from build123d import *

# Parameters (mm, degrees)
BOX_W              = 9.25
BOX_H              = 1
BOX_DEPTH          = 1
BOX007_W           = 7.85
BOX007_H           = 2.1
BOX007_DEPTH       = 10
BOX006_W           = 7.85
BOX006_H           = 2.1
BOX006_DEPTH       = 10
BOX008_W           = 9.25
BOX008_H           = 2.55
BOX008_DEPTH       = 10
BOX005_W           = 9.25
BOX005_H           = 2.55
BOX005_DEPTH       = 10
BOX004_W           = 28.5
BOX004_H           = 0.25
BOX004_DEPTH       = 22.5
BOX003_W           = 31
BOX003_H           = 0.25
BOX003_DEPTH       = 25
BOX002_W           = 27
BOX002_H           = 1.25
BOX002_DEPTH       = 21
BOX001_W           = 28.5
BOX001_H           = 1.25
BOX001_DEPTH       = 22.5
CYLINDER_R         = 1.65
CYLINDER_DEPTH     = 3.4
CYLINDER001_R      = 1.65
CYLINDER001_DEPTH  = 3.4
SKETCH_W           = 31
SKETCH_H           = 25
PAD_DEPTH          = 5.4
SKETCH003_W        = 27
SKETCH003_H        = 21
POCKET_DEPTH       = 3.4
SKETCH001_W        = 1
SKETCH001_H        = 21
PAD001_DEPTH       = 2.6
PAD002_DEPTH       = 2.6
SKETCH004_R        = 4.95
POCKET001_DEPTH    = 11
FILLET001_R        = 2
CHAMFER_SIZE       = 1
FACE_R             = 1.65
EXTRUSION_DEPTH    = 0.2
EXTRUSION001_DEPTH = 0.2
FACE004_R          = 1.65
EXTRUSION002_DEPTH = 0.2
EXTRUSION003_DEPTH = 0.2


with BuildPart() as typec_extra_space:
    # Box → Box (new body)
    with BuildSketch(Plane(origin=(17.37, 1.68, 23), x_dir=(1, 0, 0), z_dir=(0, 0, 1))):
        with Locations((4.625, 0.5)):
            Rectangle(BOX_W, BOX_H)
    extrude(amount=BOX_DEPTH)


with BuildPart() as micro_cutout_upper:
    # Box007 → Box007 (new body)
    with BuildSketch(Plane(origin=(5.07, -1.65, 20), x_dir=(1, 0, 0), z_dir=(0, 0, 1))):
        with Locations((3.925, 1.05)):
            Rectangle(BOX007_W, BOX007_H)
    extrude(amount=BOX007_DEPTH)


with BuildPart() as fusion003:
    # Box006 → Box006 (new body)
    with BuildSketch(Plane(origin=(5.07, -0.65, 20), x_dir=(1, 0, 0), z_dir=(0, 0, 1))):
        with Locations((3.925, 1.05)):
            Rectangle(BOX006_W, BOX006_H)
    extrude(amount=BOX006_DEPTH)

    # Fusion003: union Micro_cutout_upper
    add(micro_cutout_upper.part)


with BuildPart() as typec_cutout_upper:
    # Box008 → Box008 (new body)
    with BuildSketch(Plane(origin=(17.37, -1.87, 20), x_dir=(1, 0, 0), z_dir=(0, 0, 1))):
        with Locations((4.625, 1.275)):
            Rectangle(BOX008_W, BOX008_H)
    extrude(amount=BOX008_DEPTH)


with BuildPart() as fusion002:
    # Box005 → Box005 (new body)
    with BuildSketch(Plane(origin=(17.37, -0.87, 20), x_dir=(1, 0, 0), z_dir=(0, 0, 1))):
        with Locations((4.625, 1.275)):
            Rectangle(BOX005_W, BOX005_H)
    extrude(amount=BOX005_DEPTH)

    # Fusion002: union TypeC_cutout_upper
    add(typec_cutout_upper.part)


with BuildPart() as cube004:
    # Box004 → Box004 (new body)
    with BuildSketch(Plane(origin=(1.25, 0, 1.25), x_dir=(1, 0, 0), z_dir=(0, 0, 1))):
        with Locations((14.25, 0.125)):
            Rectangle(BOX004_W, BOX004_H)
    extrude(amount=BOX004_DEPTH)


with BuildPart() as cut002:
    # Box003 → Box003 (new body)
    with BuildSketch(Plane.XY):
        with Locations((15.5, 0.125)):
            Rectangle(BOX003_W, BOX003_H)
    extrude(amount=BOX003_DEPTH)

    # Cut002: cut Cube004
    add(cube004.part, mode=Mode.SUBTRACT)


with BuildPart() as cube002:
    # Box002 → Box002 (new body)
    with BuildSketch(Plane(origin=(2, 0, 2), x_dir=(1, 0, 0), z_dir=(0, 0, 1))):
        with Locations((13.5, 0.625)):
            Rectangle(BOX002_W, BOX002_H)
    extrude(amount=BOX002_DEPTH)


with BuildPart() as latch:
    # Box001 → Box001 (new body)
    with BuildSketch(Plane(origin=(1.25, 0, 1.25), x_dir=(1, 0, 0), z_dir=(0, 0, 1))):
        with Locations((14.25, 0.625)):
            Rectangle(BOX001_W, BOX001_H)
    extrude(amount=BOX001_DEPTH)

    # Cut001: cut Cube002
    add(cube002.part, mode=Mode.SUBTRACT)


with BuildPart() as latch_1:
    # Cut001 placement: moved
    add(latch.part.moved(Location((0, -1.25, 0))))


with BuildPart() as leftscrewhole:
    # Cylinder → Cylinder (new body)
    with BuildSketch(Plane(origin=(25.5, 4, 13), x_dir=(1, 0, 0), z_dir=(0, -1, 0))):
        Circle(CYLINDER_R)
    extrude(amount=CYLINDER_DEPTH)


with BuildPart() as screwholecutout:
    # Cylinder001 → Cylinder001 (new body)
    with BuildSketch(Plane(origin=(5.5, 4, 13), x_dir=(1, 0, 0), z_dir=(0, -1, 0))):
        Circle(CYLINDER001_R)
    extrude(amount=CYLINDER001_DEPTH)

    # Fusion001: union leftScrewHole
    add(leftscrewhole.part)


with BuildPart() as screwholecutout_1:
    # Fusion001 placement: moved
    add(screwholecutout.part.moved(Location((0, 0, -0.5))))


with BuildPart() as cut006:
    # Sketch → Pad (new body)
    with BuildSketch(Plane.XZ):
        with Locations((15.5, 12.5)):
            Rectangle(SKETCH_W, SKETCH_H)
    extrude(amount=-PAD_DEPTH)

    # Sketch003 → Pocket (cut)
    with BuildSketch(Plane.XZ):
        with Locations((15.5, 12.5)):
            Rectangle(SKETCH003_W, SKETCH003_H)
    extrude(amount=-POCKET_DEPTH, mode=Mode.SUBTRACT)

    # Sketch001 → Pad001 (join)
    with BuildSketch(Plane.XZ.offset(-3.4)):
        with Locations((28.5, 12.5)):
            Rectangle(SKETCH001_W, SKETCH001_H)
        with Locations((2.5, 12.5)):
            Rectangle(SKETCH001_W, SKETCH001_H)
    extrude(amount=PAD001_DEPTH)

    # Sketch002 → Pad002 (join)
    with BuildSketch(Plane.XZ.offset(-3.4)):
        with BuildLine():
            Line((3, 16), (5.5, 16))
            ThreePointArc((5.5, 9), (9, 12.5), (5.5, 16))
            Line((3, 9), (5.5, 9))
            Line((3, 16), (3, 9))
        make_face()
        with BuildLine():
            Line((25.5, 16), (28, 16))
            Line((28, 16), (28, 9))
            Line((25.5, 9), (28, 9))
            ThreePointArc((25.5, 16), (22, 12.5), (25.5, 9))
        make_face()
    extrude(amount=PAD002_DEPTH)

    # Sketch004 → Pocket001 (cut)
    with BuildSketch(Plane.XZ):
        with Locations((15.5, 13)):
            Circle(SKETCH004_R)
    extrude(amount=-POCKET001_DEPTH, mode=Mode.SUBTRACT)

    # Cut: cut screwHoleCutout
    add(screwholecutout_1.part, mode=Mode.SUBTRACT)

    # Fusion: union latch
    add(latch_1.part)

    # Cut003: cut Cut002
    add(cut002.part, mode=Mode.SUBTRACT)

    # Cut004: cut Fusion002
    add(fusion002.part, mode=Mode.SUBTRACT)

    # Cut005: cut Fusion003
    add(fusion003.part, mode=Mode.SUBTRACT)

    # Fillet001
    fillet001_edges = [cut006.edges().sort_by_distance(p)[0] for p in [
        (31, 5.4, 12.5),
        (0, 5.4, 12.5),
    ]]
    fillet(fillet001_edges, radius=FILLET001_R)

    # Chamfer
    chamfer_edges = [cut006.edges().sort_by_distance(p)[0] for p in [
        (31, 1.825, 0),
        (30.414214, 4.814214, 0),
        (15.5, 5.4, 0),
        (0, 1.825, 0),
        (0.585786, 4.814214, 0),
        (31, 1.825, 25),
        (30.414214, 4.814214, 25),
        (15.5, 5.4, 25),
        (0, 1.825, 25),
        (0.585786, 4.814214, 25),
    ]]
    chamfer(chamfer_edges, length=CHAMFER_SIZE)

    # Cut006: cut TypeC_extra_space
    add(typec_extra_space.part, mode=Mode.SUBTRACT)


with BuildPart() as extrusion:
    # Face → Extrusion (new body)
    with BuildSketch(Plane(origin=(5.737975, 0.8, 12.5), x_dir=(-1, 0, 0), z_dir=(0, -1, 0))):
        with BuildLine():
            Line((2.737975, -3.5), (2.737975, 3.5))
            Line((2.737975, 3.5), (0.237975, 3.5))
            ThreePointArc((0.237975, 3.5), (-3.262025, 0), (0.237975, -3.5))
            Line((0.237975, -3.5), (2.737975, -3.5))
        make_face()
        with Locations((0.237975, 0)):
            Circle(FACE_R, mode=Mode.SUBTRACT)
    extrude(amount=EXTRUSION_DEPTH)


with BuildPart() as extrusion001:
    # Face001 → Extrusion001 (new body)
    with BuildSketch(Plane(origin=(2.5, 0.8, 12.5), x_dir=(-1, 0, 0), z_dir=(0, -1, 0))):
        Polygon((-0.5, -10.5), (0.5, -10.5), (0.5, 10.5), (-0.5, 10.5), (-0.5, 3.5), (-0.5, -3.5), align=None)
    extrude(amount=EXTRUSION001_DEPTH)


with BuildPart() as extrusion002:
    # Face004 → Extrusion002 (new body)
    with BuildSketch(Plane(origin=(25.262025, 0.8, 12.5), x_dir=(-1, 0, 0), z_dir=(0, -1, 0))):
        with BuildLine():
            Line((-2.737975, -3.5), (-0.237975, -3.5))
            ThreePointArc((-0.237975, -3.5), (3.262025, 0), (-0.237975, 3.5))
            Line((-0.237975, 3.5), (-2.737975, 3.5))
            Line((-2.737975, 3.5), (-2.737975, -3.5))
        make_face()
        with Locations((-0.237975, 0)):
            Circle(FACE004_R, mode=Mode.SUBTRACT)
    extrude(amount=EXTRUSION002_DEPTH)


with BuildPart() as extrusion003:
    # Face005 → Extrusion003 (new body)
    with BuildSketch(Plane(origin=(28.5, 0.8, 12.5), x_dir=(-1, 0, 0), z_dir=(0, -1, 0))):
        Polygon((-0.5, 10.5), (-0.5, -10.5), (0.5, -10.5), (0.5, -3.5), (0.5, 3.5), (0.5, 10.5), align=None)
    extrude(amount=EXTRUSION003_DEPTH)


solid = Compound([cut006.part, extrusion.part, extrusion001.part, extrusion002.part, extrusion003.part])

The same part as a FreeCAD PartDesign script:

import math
import FreeCAD as App
import Part
import Sketcher

V = App.Vector


def edges_at(feature, points):
    """Names of the edges that pass closest to the given points."""
    edges = feature.Shape.Edges
    near = lambda p: min(range(len(edges)), key=lambda i: edges[i].distToShape(Part.Vertex(*p))[0])
    return sorted({f"Edge{near(p) + 1}" for p in points})


def add_polygon(sketch, points):
    """Adds a closed chain of lines whose ends are joined by coincident constraints."""
    first, n = sketch.GeometryCount, len(points)
    for a, b in zip(points, points[1:] + points[:1]):
        sketch.addGeometry(Part.LineSegment(App.Vector(*a, 0), App.Vector(*b, 0)), False)
    for i in range(n):
        sketch.addConstraint(Sketcher.Constraint("Coincident", first + i, 2, first + (i + 1) % n, 1))

doc = App.newDocument("Part")
params = doc.addObject("Spreadsheet::Sheet", "Params")
for row, (alias, value) in enumerate([
    ("sketch1_height", "1 mm"),
    ("sketch1_width", "9.25 mm"),
    ("pad1_length", "1 mm"),
    ("sketch2_height", "2.1 mm"),
    ("sketch2_width", "7.85 mm"),
    ("pad2_length", "10 mm"),
    ("sketch3_height", "2.1 mm"),
    ("sketch3_width", "7.85 mm"),
    ("pad3_length", "10 mm"),
    ("sketch4_width", "9.25 mm"),
    ("sketch4_height", "2.55 mm"),
    ("pad4_length", "10 mm"),
    ("sketch5_width", "9.25 mm"),
    ("sketch5_height", "2.55 mm"),
    ("pad5_length", "10 mm"),
    ("sketch6_width", "28.5 mm"),
    ("sketch6_height", "0.25 mm"),
    ("pad6_length", "22.5 mm"),
    ("sketch7_width", "31 mm"),
    ("sketch7_height", "0.25 mm"),
    ("pad7_length", "25 mm"),
    ("sketch8_width", "27 mm"),
    ("sketch8_height", "1.25 mm"),
    ("pad8_length", "21 mm"),
    ("sketch9_width", "28.5 mm"),
    ("sketch9_height", "1.25 mm"),
    ("pad9_length", "22.5 mm"),
    ("sketch10_diameter", "3.3 mm"),
    ("pad10_length", "3.4 mm"),
    ("sketch11_diameter", "3.3 mm"),
    ("pad11_length", "3.4 mm"),
    ("sketch12_width", "31 mm"),
    ("sketch12_height", "25 mm"),
    ("pad12_length", "5.4 mm"),
    ("sketch13_width", "27 mm"),
    ("sketch13_height", "21 mm"),
    ("pocket1_length", "3.4 mm"),
    ("sketch14_width", "1 mm"),
    ("sketch14_height", "21 mm"),
    ("pad13_length", "2.6 mm"),
    ("sketch15_radius", "3.5 mm"),
    ("sketch15_width", "2.5 mm"),
    ("pad14_length", "2.6 mm"),
    ("sketch16_diameter", "9.9 mm"),
    ("pocket2_length", "11 mm"),
    ("fillet_radius", "2 mm"),
    ("chamfer_size", "1 mm"),
    ("sketch17_diameter", "3.3 mm"),
    ("sketch17_radius", "3.5 mm"),
    ("sketch17_width", "2.5 mm"),
    ("pad15_length", "0.2 mm"),
    ("sketch18_width", "1 mm"),
    ("sketch18_height", "21 mm"),
    ("pad16_length", "0.2 mm"),
    ("sketch19_diameter", "3.3 mm"),
    ("sketch19_radius", "3.5 mm"),
    ("sketch19_width", "2.5 mm"),
    ("pad17_length", "0.2 mm"),
    ("sketch20_width", "1 mm"),
    ("sketch20_height", "21 mm"),
    ("pad18_length", "0.2 mm"),
], start=1):
    params.set(f"A{row}", alias)
    params.set(f"B{row}", "=" + value)
    params.setAlias(f"B{row}", alias)

body = doc.addObject("PartDesign::Body", "Body")

# Sketch on XY plane
sketch1 = body.newObject("Sketcher::SketchObject", "Sketch")
sketch1.AttachmentSupport = (doc.getObject("XY_Plane"), [""])
sketch1.MapMode = "FlatFace"
sketch1.AttachmentOffset = App.Placement(V(0, 0, 23), App.Rotation())
add_polygon(sketch1, [(17.4, 2.7), (17.4, 1.7), (26.6, 1.7), (26.6, 2.7)])  # lines 0-3
sketch1.addConstraint(Sketcher.Constraint("Vertical", 0))
sketch1.addConstraint(Sketcher.Constraint("Horizontal", 1))
sketch1.addConstraint(Sketcher.Constraint("Vertical", 2))
sketch1.addConstraint(Sketcher.Constraint("Horizontal", 3))
sketch1.addConstraint(Sketcher.Constraint("DistanceY", 0, 2, 0, 1, 1.0))
sketch1.addConstraint(Sketcher.Constraint("DistanceX", 1, 1, 1, 2, 9.25))
sketch1.addConstraint(Sketcher.Constraint("DistanceX", -1, 1, 0, 2, 17.37))
sketch1.addConstraint(Sketcher.Constraint("DistanceY", -1, 1, 0, 2, 1.68))
sketch1.setExpression("Constraints[8]", "Params.sketch1_height")
sketch1.setExpression("Constraints[9]", "Params.sketch1_width")
pad1 = body.newObject("PartDesign::Pad", "Pad")
pad1.Profile = sketch1
pad1.setExpression("Length", "Params.pad1_length")
body2 = doc.addObject("PartDesign::Body", "Body001")

# Sketch on XY plane
sketch2 = body2.newObject("Sketcher::SketchObject", "Sketch001")
sketch2.AttachmentSupport = (doc.getObject("XY_Plane001"), [""])
sketch2.MapMode = "FlatFace"
sketch2.AttachmentOffset = App.Placement(V(0, 0, 20), App.Rotation())
add_polygon(sketch2, [(5.1, 0.5), (5.1, -1.6), (12.9, -1.6), (12.9, 0.5)])  # lines 0-3
sketch2.addConstraint(Sketcher.Constraint("Vertical", 0))
sketch2.addConstraint(Sketcher.Constraint("Horizontal", 1))
sketch2.addConstraint(Sketcher.Constraint("Vertical", 2))
sketch2.addConstraint(Sketcher.Constraint("Horizontal", 3))
sketch2.addConstraint(Sketcher.Constraint("DistanceY", 0, 2, 0, 1, 2.1))
sketch2.addConstraint(Sketcher.Constraint("DistanceX", 1, 1, 1, 2, 7.85))
sketch2.addConstraint(Sketcher.Constraint("DistanceX", -1, 1, 0, 2, 5.07))
sketch2.addConstraint(Sketcher.Constraint("DistanceY", 0, 2, -1, 1, 1.65))
sketch2.setExpression("Constraints[8]", "Params.sketch2_height")
sketch2.setExpression("Constraints[9]", "Params.sketch2_width")
pad2 = body2.newObject("PartDesign::Pad", "Pad001")
pad2.Profile = sketch2
pad2.setExpression("Length", "Params.pad2_length")
body3 = doc.addObject("PartDesign::Body", "Body002")

# Sketch on XY plane
sketch3 = body3.newObject("Sketcher::SketchObject", "Sketch002")
sketch3.AttachmentSupport = (doc.getObject("XY_Plane002"), [""])
sketch3.MapMode = "FlatFace"
sketch3.AttachmentOffset = App.Placement(V(0, 0, 20), App.Rotation())
add_polygon(sketch3, [(5.1, 1.4), (5.1, -0.7), (12.9, -0.7), (12.9, 1.4)])  # lines 0-3
sketch3.addConstraint(Sketcher.Constraint("Vertical", 0))
sketch3.addConstraint(Sketcher.Constraint("Horizontal", 1))
sketch3.addConstraint(Sketcher.Constraint("Vertical", 2))
sketch3.addConstraint(Sketcher.Constraint("Horizontal", 3))
sketch3.addConstraint(Sketcher.Constraint("DistanceY", 0, 2, 0, 1, 2.1))
sketch3.addConstraint(Sketcher.Constraint("DistanceX", 1, 1, 1, 2, 7.85))
sketch3.addConstraint(Sketcher.Constraint("DistanceX", -1, 1, 0, 2, 5.07))
sketch3.addConstraint(Sketcher.Constraint("DistanceY", 0, 2, -1, 1, 0.65))
sketch3.setExpression("Constraints[8]", "Params.sketch3_height")
sketch3.setExpression("Constraints[9]", "Params.sketch3_width")
pad3 = body3.newObject("PartDesign::Pad", "Pad002")
pad3.Profile = sketch3
pad3.setExpression("Length", "Params.pad3_length")
doc.recompute()

boolean = body3.newObject("PartDesign::Boolean", "Boolean")
boolean.Type = "Fuse"
boolean.addObjects([body2])
body4 = doc.addObject("PartDesign::Body", "Body003")

# Sketch on XY plane
sketch4 = body4.newObject("Sketcher::SketchObject", "Sketch003")
sketch4.AttachmentSupport = (doc.getObject("XY_Plane003"), [""])
sketch4.MapMode = "FlatFace"
sketch4.AttachmentOffset = App.Placement(V(0, 0, 20), App.Rotation())
add_polygon(sketch4, [(17.4, 0.7), (17.4, -1.9), (26.6, -1.9), (26.6, 0.7)])  # lines 0-3
sketch4.addConstraint(Sketcher.Constraint("Vertical", 0))
sketch4.addConstraint(Sketcher.Constraint("Horizontal", 1))
sketch4.addConstraint(Sketcher.Constraint("Vertical", 2))
sketch4.addConstraint(Sketcher.Constraint("Horizontal", 3))
sketch4.addConstraint(Sketcher.Constraint("DistanceX", 1, 1, 1, 2, 9.25))
sketch4.addConstraint(Sketcher.Constraint("DistanceY", 0, 2, 0, 1, 2.55))
sketch4.addConstraint(Sketcher.Constraint("DistanceX", -1, 1, 0, 2, 17.37))
sketch4.addConstraint(Sketcher.Constraint("DistanceY", 0, 2, -1, 1, 1.87))
sketch4.setExpression("Constraints[8]", "Params.sketch4_width")
sketch4.setExpression("Constraints[9]", "Params.sketch4_height")
pad4 = body4.newObject("PartDesign::Pad", "Pad003")
pad4.Profile = sketch4
pad4.setExpression("Length", "Params.pad4_length")
body5 = doc.addObject("PartDesign::Body", "Body004")

# Sketch on XY plane
sketch5 = body5.newObject("Sketcher::SketchObject", "Sketch004")
sketch5.AttachmentSupport = (doc.getObject("XY_Plane004"), [""])
sketch5.MapMode = "FlatFace"
sketch5.AttachmentOffset = App.Placement(V(0, 0, 20), App.Rotation())
add_polygon(sketch5, [(17.4, 1.7), (17.4, -0.9), (26.6, -0.9), (26.6, 1.7)])  # lines 0-3
sketch5.addConstraint(Sketcher.Constraint("Vertical", 0))
sketch5.addConstraint(Sketcher.Constraint("Horizontal", 1))
sketch5.addConstraint(Sketcher.Constraint("Vertical", 2))
sketch5.addConstraint(Sketcher.Constraint("Horizontal", 3))
sketch5.addConstraint(Sketcher.Constraint("DistanceX", 1, 1, 1, 2, 9.25))
sketch5.addConstraint(Sketcher.Constraint("DistanceY", 0, 2, 0, 1, 2.55))
sketch5.addConstraint(Sketcher.Constraint("DistanceX", -1, 1, 0, 2, 17.37))
sketch5.addConstraint(Sketcher.Constraint("DistanceY", 0, 2, -1, 1, 0.87))
sketch5.setExpression("Constraints[8]", "Params.sketch5_width")
sketch5.setExpression("Constraints[9]", "Params.sketch5_height")
pad5 = body5.newObject("PartDesign::Pad", "Pad004")
pad5.Profile = sketch5
pad5.setExpression("Length", "Params.pad5_length")
doc.recompute()

boolean2 = body5.newObject("PartDesign::Boolean", "Boolean001")
boolean2.Type = "Fuse"
boolean2.addObjects([body4])
body6 = doc.addObject("PartDesign::Body", "Body005")

# Sketch on XY plane
sketch6 = body6.newObject("Sketcher::SketchObject", "Sketch005")
sketch6.AttachmentSupport = (doc.getObject("XY_Plane005"), [""])
sketch6.MapMode = "FlatFace"
sketch6.AttachmentOffset = App.Placement(V(0, 0, 1.25), App.Rotation())
add_polygon(sketch6, [(1.25, 0.25), (1.25, 0), (29.75, 0), (29.75, 0.25)])  # lines 0-3
sketch6.addConstraint(Sketcher.Constraint("Vertical", 0))
sketch6.addConstraint(Sketcher.Constraint("Horizontal", 1))
sketch6.addConstraint(Sketcher.Constraint("Vertical", 2))
sketch6.addConstraint(Sketcher.Constraint("Horizontal", 3))
sketch6.addConstraint(Sketcher.Constraint("PointOnObject", 0, 2, -1))
sketch6.addConstraint(Sketcher.Constraint("DistanceX", 1, 1, 1, 2, 28.5))
sketch6.addConstraint(Sketcher.Constraint("DistanceY", 0, 2, 0, 1, 0.25))
sketch6.addConstraint(Sketcher.Constraint("DistanceX", -1, 1, 0, 2, 1.25))
sketch6.setExpression("Constraints[9]", "Params.sketch6_width")
sketch6.setExpression("Constraints[10]", "Params.sketch6_height")
pad6 = body6.newObject("PartDesign::Pad", "Pad005")
pad6.Profile = sketch6
pad6.setExpression("Length", "Params.pad6_length")
body7 = doc.addObject("PartDesign::Body", "Body006")

# Sketch on XY plane
sketch7 = body7.newObject("Sketcher::SketchObject", "Sketch006")
sketch7.AttachmentSupport = (doc.getObject("XY_Plane006"), [""])
sketch7.MapMode = "FlatFace"
add_polygon(sketch7, [(0, 0.25), (0, 0), (31, 0), (31, 0.25)])  # lines 0-3
sketch7.addConstraint(Sketcher.Constraint("Vertical", 0))
sketch7.addConstraint(Sketcher.Constraint("Horizontal", 1))
sketch7.addConstraint(Sketcher.Constraint("Vertical", 2))
sketch7.addConstraint(Sketcher.Constraint("Horizontal", 3))
sketch7.addConstraint(Sketcher.Constraint("Coincident", 0, 2, -1, 1))
sketch7.addConstraint(Sketcher.Constraint("DistanceX", 1, 1, 1, 2, 31.0))
sketch7.addConstraint(Sketcher.Constraint("DistanceY", 0, 2, 0, 1, 0.25))
sketch7.setExpression("Constraints[9]", "Params.sketch7_width")
sketch7.setExpression("Constraints[10]", "Params.sketch7_height")
pad7 = body7.newObject("PartDesign::Pad", "Pad006")
pad7.Profile = sketch7
pad7.setExpression("Length", "Params.pad7_length")
doc.recompute()

boolean3 = body7.newObject("PartDesign::Boolean", "Boolean002")
boolean3.Type = "Cut"
boolean3.addObjects([body6])
body8 = doc.addObject("PartDesign::Body", "Body007")

# Sketch on XY plane
sketch8 = body8.newObject("Sketcher::SketchObject", "Sketch007")
sketch8.AttachmentSupport = (doc.getObject("XY_Plane007"), [""])
sketch8.MapMode = "FlatFace"
sketch8.AttachmentOffset = App.Placement(V(0, 0, 2), App.Rotation())
add_polygon(sketch8, [(2, 1.2), (2, 0), (29, 0), (29, 1.2)])  # lines 0-3
sketch8.addConstraint(Sketcher.Constraint("Vertical", 0))
sketch8.addConstraint(Sketcher.Constraint("Horizontal", 1))
sketch8.addConstraint(Sketcher.Constraint("Vertical", 2))
sketch8.addConstraint(Sketcher.Constraint("Horizontal", 3))
sketch8.addConstraint(Sketcher.Constraint("PointOnObject", 0, 2, -1))
sketch8.addConstraint(Sketcher.Constraint("DistanceX", 1, 1, 1, 2, 27.0))
sketch8.addConstraint(Sketcher.Constraint("DistanceX", -1, 1, 0, 2, 2.0))
sketch8.addConstraint(Sketcher.Constraint("DistanceY", 0, 2, 0, 1, 1.25))
sketch8.setExpression("Constraints[9]", "Params.sketch8_width")
sketch8.setExpression("Constraints[11]", "Params.sketch8_height")
pad8 = body8.newObject("PartDesign::Pad", "Pad007")
pad8.Profile = sketch8
pad8.setExpression("Length", "Params.pad8_length")
body9 = doc.addObject("PartDesign::Body", "Body008")

# Sketch on XY plane
sketch9 = body9.newObject("Sketcher::SketchObject", "Sketch008")
sketch9.AttachmentSupport = (doc.getObject("XY_Plane008"), [""])
sketch9.MapMode = "FlatFace"
sketch9.AttachmentOffset = App.Placement(V(0, 0, 1.25), App.Rotation())
add_polygon(sketch9, [(1.2, 1.2), (1.2, 0), (29.8, 0), (29.8, 1.2)])  # lines 0-3
sketch9.addConstraint(Sketcher.Constraint("Vertical", 0))
sketch9.addConstraint(Sketcher.Constraint("Horizontal", 1))
sketch9.addConstraint(Sketcher.Constraint("Vertical", 2))
sketch9.addConstraint(Sketcher.Constraint("Horizontal", 3))
sketch9.addConstraint(Sketcher.Constraint("PointOnObject", 0, 2, -1))
sketch9.addConstraint(Sketcher.Constraint("DistanceX", 1, 1, 1, 2, 28.5))
sketch9.addConstraint(Sketcher.Constraint("DistanceY", 0, 2, 0, 1, 1.25))
sketch9.addConstraint(Sketcher.Constraint("DistanceX", -1, 1, 0, 2, 1.25))
sketch9.setExpression("Constraints[9]", "Params.sketch9_width")
sketch9.setExpression("Constraints[10]", "Params.sketch9_height")
pad9 = body9.newObject("PartDesign::Pad", "Pad008")
pad9.Profile = sketch9
pad9.setExpression("Length", "Params.pad9_length")
doc.recompute()

boolean4 = body9.newObject("PartDesign::Boolean", "Boolean003")
boolean4.Type = "Cut"
boolean4.addObjects([body8])
body10 = doc.addObject("PartDesign::Body", "Body009")
doc.recompute()

body9.Placement = App.Placement(V(0, -1.25, 0), App.Rotation(V(0, 0, 1), 0))
boolean5 = body10.newObject("PartDesign::Boolean", "Boolean004")
boolean5.Type = "Fuse"
boolean5.addObjects([body9])
body11 = doc.addObject("PartDesign::Body", "Body010")

# Sketch on XZ plane
sketch10 = body11.newObject("Sketcher::SketchObject", "Sketch009")
sketch10.AttachmentSupport = (doc.getObject("XZ_Plane010"), [""])
sketch10.MapMode = "FlatFace"
sketch10.AttachmentOffset = App.Placement(V(0, 0, -4), App.Rotation())
sketch10.addGeometry(Part.Circle(V(25.5, 13, 0), V(0, 0, 1), 1.6), False)
sketch10.addConstraint(Sketcher.Constraint("Diameter", 0, 3.3))
sketch10.addConstraint(Sketcher.Constraint("DistanceY", -1, 1, 0, 3, 13.0))
sketch10.addConstraint(Sketcher.Constraint("DistanceX", -1, 1, 0, 3, 25.5))
sketch10.setExpression("Constraints[0]", "Params.sketch10_diameter")
pad10 = body11.newObject("PartDesign::Pad", "Pad009")
pad10.Profile = sketch10
pad10.setExpression("Length", "Params.pad10_length")
body12 = doc.addObject("PartDesign::Body", "Body011")
body12.AllowCompound = True

# Sketch on XZ plane
sketch11 = body12.newObject("Sketcher::SketchObject", "Sketch010")
sketch11.AttachmentSupport = (doc.getObject("XZ_Plane011"), [""])
sketch11.MapMode = "FlatFace"
sketch11.AttachmentOffset = App.Placement(V(0, 0, -4), App.Rotation())
sketch11.addGeometry(Part.Circle(V(5.5, 13, 0), V(0, 0, 1), 1.6), False)
sketch11.addConstraint(Sketcher.Constraint("Diameter", 0, 3.3))
sketch11.addConstraint(Sketcher.Constraint("DistanceY", -1, 1, 0, 3, 13.0))
sketch11.addConstraint(Sketcher.Constraint("DistanceX", -1, 1, 0, 3, 5.5))
sketch11.setExpression("Constraints[0]", "Params.sketch11_diameter")
pad11 = body12.newObject("PartDesign::Pad", "Pad010")
pad11.Profile = sketch11
pad11.setExpression("Length", "Params.pad11_length")
doc.recompute()

boolean6 = body12.newObject("PartDesign::Boolean", "Boolean005")
boolean6.Type = "Fuse"
boolean6.addObjects([body11])
body13 = doc.addObject("PartDesign::Body", "Body012")
body13.AllowCompound = True
doc.recompute()

body12.Placement = App.Placement(V(0, 0, -0.5), App.Rotation(V(0, 0, 1), 0))
boolean7 = body13.newObject("PartDesign::Boolean", "Boolean006")
boolean7.Type = "Fuse"
boolean7.addObjects([body12])
body14 = doc.addObject("PartDesign::Body", "Body013")

# Sketch on XZ plane
sketch12 = body14.newObject("Sketcher::SketchObject", "Sketch011")
sketch12.AttachmentSupport = (doc.getObject("XZ_Plane013"), [""])
sketch12.MapMode = "FlatFace"
add_polygon(sketch12, [(0, 25), (0, 0), (31, 0), (31, 25)])  # lines 0-3
sketch12.addConstraint(Sketcher.Constraint("Vertical", 0))
sketch12.addConstraint(Sketcher.Constraint("Horizontal", 1))
sketch12.addConstraint(Sketcher.Constraint("Vertical", 2))
sketch12.addConstraint(Sketcher.Constraint("Horizontal", 3))
sketch12.addConstraint(Sketcher.Constraint("Coincident", 0, 2, -1, 1))
sketch12.addConstraint(Sketcher.Constraint("DistanceX", 1, 1, 1, 2, 31.0))
sketch12.addConstraint(Sketcher.Constraint("DistanceY", 0, 2, 0, 1, 25.0))
sketch12.setExpression("Constraints[9]", "Params.sketch12_width")
sketch12.setExpression("Constraints[10]", "Params.sketch12_height")
pad12 = body14.newObject("PartDesign::Pad", "Pad011")
pad12.Profile = sketch12
pad12.setExpression("Length", "Params.pad12_length")
pad12.Reversed = True

# Sketch on XZ plane
sketch13 = body14.newObject("Sketcher::SketchObject", "Sketch012")
sketch13.AttachmentSupport = (doc.getObject("XZ_Plane013"), [""])
sketch13.MapMode = "FlatFace"
add_polygon(sketch13, [(2, 23), (2, 2), (29, 2), (29, 23)])  # lines 0-3
sketch13.addConstraint(Sketcher.Constraint("Vertical", 0))
sketch13.addConstraint(Sketcher.Constraint("Horizontal", 1))
sketch13.addConstraint(Sketcher.Constraint("Vertical", 2))
sketch13.addConstraint(Sketcher.Constraint("Horizontal", 3))
sketch13.addConstraint(Sketcher.Constraint("DistanceX", 1, 1, 1, 2, 27.0))
sketch13.addConstraint(Sketcher.Constraint("DistanceY", 0, 2, 0, 1, 21.0))
sketch13.addConstraint(Sketcher.Constraint("DistanceX", -1, 1, 0, 2, 2.0))
sketch13.addConstraint(Sketcher.Constraint("DistanceY", -1, 1, 0, 2, 2.0))
sketch13.setExpression("Constraints[8]", "Params.sketch13_width")
sketch13.setExpression("Constraints[9]", "Params.sketch13_height")
pocket1 = body14.newObject("PartDesign::Pocket", "Pocket")
pocket1.Profile = sketch13
pocket1.setExpression("Length", "Params.pocket1_length")

# Sketch on XZ plane
sketch14 = body14.newObject("Sketcher::SketchObject", "Sketch013")
sketch14.AttachmentSupport = (doc.getObject("XZ_Plane013"), [""])
sketch14.MapMode = "FlatFace"
sketch14.AttachmentOffset = App.Placement(V(0, 0, -3.4), App.Rotation())
add_polygon(sketch14, [(28, 23), (28, 2), (29, 2), (29, 23)])  # lines 0-3
add_polygon(sketch14, [(2, 23), (2, 2), (3, 2), (3, 23)])  # lines 4-7
sketch14.addConstraint(Sketcher.Constraint("Vertical", 0))
sketch14.addConstraint(Sketcher.Constraint("Horizontal", 1))
sketch14.addConstraint(Sketcher.Constraint("Vertical", 2))
sketch14.addConstraint(Sketcher.Constraint("Horizontal", 3))
sketch14.addConstraint(Sketcher.Constraint("Vertical", 4))
sketch14.addConstraint(Sketcher.Constraint("Horizontal", 5))
sketch14.addConstraint(Sketcher.Constraint("Vertical", 6))
sketch14.addConstraint(Sketcher.Constraint("Horizontal", 7))
sketch14.addConstraint(Sketcher.Constraint("Horizontal", 1, 2, 4, 2))
sketch14.addConstraint(Sketcher.Constraint("Horizontal", 3, 2, 6, 2))
sketch14.addConstraint(Sketcher.Constraint("Equal", 3, 5))
sketch14.addConstraint(Sketcher.Constraint("DistanceX", 1, 1, 1, 2, 1.0))
sketch14.addConstraint(Sketcher.Constraint("DistanceY", 0, 2, 0, 1, 21.0))
sketch14.addConstraint(Sketcher.Constraint("DistanceX", -1, 1, 0, 2, 28.0))
sketch14.addConstraint(Sketcher.Constraint("DistanceY", -1, 1, 0, 2, 2.0))
sketch14.addConstraint(Sketcher.Constraint("DistanceX", -1, 1, 4, 2, 2.0))
sketch14.setExpression("Constraints[19]", "Params.sketch14_width")
sketch14.setExpression("Constraints[20]", "Params.sketch14_height")
pad13 = body14.newObject("PartDesign::Pad", "Pad012")
pad13.Profile = sketch14
pad13.setExpression("Length", "Params.pad13_length")

# Sketch on XZ plane
sketch15 = body14.newObject("Sketcher::SketchObject", "Sketch014")
sketch15.AttachmentSupport = (doc.getObject("XZ_Plane013"), [""])
sketch15.MapMode = "FlatFace"
sketch15.AttachmentOffset = App.Placement(V(0, 0, -3.4), App.Rotation())
sketch15.addGeometry(Part.LineSegment(V(5.5, 16, 0), V(3, 16, 0)), False)
sketch15.addGeometry(Part.LineSegment(V(3, 16, 0), V(3, 9, 0)), False)
sketch15.addGeometry(Part.LineSegment(V(3, 9, 0), V(5.5, 9, 0)), False)
sketch15.addGeometry(Part.ArcOfCircle(Part.Circle(V(5.5, 12.5, 0), V(0, 0, 1), 3.5), math.radians(-90), math.radians(90)), False)
sketch15.addGeometry(Part.LineSegment(V(28, 16, 0), V(25.5, 16, 0)), False)
sketch15.addGeometry(Part.ArcOfCircle(Part.Circle(V(25.5, 12.5, 0), V(0, 0, 1), 3.5), math.radians(90), math.radians(270)), False)
sketch15.addGeometry(Part.LineSegment(V(25.5, 9, 0), V(28, 9, 0)), False)
sketch15.addGeometry(Part.LineSegment(V(28, 9, 0), V(28, 16, 0)), False)
sketch15.addConstraint(Sketcher.Constraint("Coincident", 0, 2, 1, 1))
sketch15.addConstraint(Sketcher.Constraint("Coincident", 1, 2, 2, 1))
sketch15.addConstraint(Sketcher.Constraint("Tangent", 2, 2, 3, 1))
sketch15.addConstraint(Sketcher.Constraint("Tangent", 3, 2, 0, 1))
sketch15.addConstraint(Sketcher.Constraint("Tangent", 4, 2, 5, 1))
sketch15.addConstraint(Sketcher.Constraint("Tangent", 5, 2, 6, 1))
sketch15.addConstraint(Sketcher.Constraint("Coincident", 6, 2, 7, 1))
sketch15.addConstraint(Sketcher.Constraint("Coincident", 7, 2, 4, 1))
sketch15.addConstraint(Sketcher.Constraint("Horizontal", 0))
sketch15.addConstraint(Sketcher.Constraint("Vertical", 1))
sketch15.addConstraint(Sketcher.Constraint("Horizontal", 2))
sketch15.addConstraint(Sketcher.Constraint("Horizontal", 4))
sketch15.addConstraint(Sketcher.Constraint("Horizontal", 6))
sketch15.addConstraint(Sketcher.Constraint("Vertical", 7))
sketch15.addConstraint(Sketcher.Constraint("Equal", 3, 5))
sketch15.addConstraint(Sketcher.Constraint("Horizontal", 3, 3, 5, 3))
sketch15.addConstraint(Sketcher.Constraint("Equal", 2, 4))
sketch15.addConstraint(Sketcher.Constraint("Radius", 3, 3.5))
sketch15.addConstraint(Sketcher.Constraint("DistanceX", 0, 2, 0, 1, 2.5))
sketch15.addConstraint(Sketcher.Constraint("DistanceX", -1, 1, 0, 2, 3.0))
sketch15.addConstraint(Sketcher.Constraint("DistanceY", -1, 1, 0, 2, 16.0))
sketch15.addConstraint(Sketcher.Constraint("DistanceX", -1, 1, 6, 2, 28.0))
sketch15.setExpression("Constraints[17]", "Params.sketch15_radius")
sketch15.setExpression("Constraints[18]", "Params.sketch15_width")
pad14 = body14.newObject("PartDesign::Pad", "Pad013")
pad14.Profile = sketch15
pad14.setExpression("Length", "Params.pad14_length")

# Sketch on XZ plane
sketch16 = body14.newObject("Sketcher::SketchObject", "Sketch015")
sketch16.AttachmentSupport = (doc.getObject("XZ_Plane013"), [""])
sketch16.MapMode = "FlatFace"
sketch16.addGeometry(Part.Circle(V(15.5, 13, 0), V(0, 0, 1), 5), False)
sketch16.addConstraint(Sketcher.Constraint("Diameter", 0, 9.9))
sketch16.addConstraint(Sketcher.Constraint("DistanceY", -1, 1, 0, 3, 13.0))
sketch16.addConstraint(Sketcher.Constraint("DistanceX", -1, 1, 0, 3, 15.5))
sketch16.setExpression("Constraints[0]", "Params.sketch16_diameter")
pocket2 = body14.newObject("PartDesign::Pocket", "Pocket001")
pocket2.Profile = sketch16
pocket2.setExpression("Length", "Params.pocket2_length")
doc.recompute()

boolean8 = body14.newObject("PartDesign::Boolean", "Boolean007")
boolean8.Type = "Cut"
boolean8.addObjects([body13])
doc.recompute()

boolean9 = body14.newObject("PartDesign::Boolean", "Boolean008")
boolean9.Type = "Fuse"
boolean9.addObjects([body10])
doc.recompute()

boolean10 = body14.newObject("PartDesign::Boolean", "Boolean009")
boolean10.Type = "Cut"
boolean10.addObjects([body7])
doc.recompute()

boolean11 = body14.newObject("PartDesign::Boolean", "Boolean010")
boolean11.Type = "Cut"
boolean11.addObjects([body5])
doc.recompute()

boolean12 = body14.newObject("PartDesign::Boolean", "Boolean011")
boolean12.Type = "Cut"
boolean12.addObjects([body3])
doc.recompute()

fillet = body14.newObject("PartDesign::Fillet", "Fillet")
fillet.Base = (boolean12, edges_at(boolean12, [(31, 5.4, 12.5), (0, 5.4, 12.5)]))
fillet.setExpression("Radius", "Params.fillet_radius")
doc.recompute()

chamfer = body14.newObject("PartDesign::Chamfer", "Chamfer")
chamfer.Base = (fillet, edges_at(fillet, [
    (31, 1.825, 0),
    (30.414, 4.814, 0),
    (15.5, 5.4, 0),
    (0, 1.825, 0),
    (0.586, 4.814, 0),
    (31, 1.825, 25),
    (30.414, 4.814, 25),
    (15.5, 5.4, 25),
    (0, 1.825, 25),
    (0.586, 4.814, 25),
]))
chamfer.setExpression("Size", "Params.chamfer_size")
doc.recompute()

boolean13 = body14.newObject("PartDesign::Boolean", "Boolean012")
boolean13.Type = "Cut"
boolean13.addObjects([body])
body15 = doc.addObject("PartDesign::Body", "Body014")

# Sketch on XZ plane
sketch17 = body15.newObject("Sketcher::SketchObject", "Sketch016")
sketch17.AttachmentSupport = (doc.getObject("XZ_Plane014"), [""])
sketch17.MapMode = "FlatFace"
sketch17.AttachmentOffset = App.Placement(V(0, 0, -0.8), App.Rotation())
sketch17.addGeometry(Part.LineSegment(V(3, 16, 0), V(3, 9, 0)), False)
sketch17.addGeometry(Part.LineSegment(V(3, 9, 0), V(5.5, 9, 0)), False)
sketch17.addGeometry(Part.ArcOfCircle(Part.Circle(V(5.5, 12.5, 0), V(0, 0, 1), 3.5), math.radians(-90), math.radians(90)), False)
sketch17.addGeometry(Part.LineSegment(V(5.5, 16, 0), V(3, 16, 0)), False)
sketch17.addGeometry(Part.Circle(V(5.5, 12.5, 0), V(0, 0, 1), 1.6), False)
sketch17.addConstraint(Sketcher.Constraint("Coincident", 0, 2, 1, 1))
sketch17.addConstraint(Sketcher.Constraint("Tangent", 1, 2, 2, 1))
sketch17.addConstraint(Sketcher.Constraint("Tangent", 2, 2, 3, 1))
sketch17.addConstraint(Sketcher.Constraint("Coincident", 3, 2, 0, 1))
sketch17.addConstraint(Sketcher.Constraint("Vertical", 0))
sketch17.addConstraint(Sketcher.Constraint("Horizontal", 1))
sketch17.addConstraint(Sketcher.Constraint("Horizontal", 3))
sketch17.addConstraint(Sketcher.Constraint("Coincident", 4, 3, 2, 3))
sketch17.addConstraint(Sketcher.Constraint("Diameter", 4, 3.3))
sketch17.addConstraint(Sketcher.Constraint("Radius", 2, 3.5))
sketch17.addConstraint(Sketcher.Constraint("DistanceX", 1, 1, 1, 2, 2.5))
sketch17.addConstraint(Sketcher.Constraint("DistanceX", -1, 1, 0, 2, 3.0))
sketch17.addConstraint(Sketcher.Constraint("DistanceY", -1, 1, 0, 2, 9.0))
sketch17.setExpression("Constraints[8]", "Params.sketch17_diameter")
sketch17.setExpression("Constraints[9]", "Params.sketch17_radius")
sketch17.setExpression("Constraints[10]", "Params.sketch17_width")
pad15 = body15.newObject("PartDesign::Pad", "Pad014")
pad15.Profile = sketch17
pad15.setExpression("Length", "Params.pad15_length")
body16 = doc.addObject("PartDesign::Body", "Body015")

# Sketch on XZ plane
sketch18 = body16.newObject("Sketcher::SketchObject", "Sketch017")
sketch18.AttachmentSupport = (doc.getObject("XZ_Plane015"), [""])
sketch18.MapMode = "FlatFace"
sketch18.AttachmentOffset = App.Placement(V(0, 0, -0.8), App.Rotation())
add_polygon(sketch18, [(3, 23), (2, 23), (2, 2), (3, 2)])  # lines 0-3
sketch18.addConstraint(Sketcher.Constraint("Horizontal", 0))
sketch18.addConstraint(Sketcher.Constraint("Vertical", 1))
sketch18.addConstraint(Sketcher.Constraint("Horizontal", 2))
sketch18.addConstraint(Sketcher.Constraint("Vertical", 3))
sketch18.addConstraint(Sketcher.Constraint("DistanceX", 0, 2, 0, 1, 1.0))
sketch18.addConstraint(Sketcher.Constraint("DistanceY", 1, 2, 1, 1, 21.0))
sketch18.addConstraint(Sketcher.Constraint("DistanceX", -1, 1, 0, 2, 2.0))
sketch18.addConstraint(Sketcher.Constraint("DistanceY", -1, 1, 0, 2, 23.0))
sketch18.setExpression("Constraints[8]", "Params.sketch18_width")
sketch18.setExpression("Constraints[9]", "Params.sketch18_height")
pad16 = body16.newObject("PartDesign::Pad", "Pad015")
pad16.Profile = sketch18
pad16.setExpression("Length", "Params.pad16_length")
body17 = doc.addObject("PartDesign::Body", "Body016")

# Sketch on XZ plane
sketch19 = body17.newObject("Sketcher::SketchObject", "Sketch018")
sketch19.AttachmentSupport = (doc.getObject("XZ_Plane016"), [""])
sketch19.MapMode = "FlatFace"
sketch19.AttachmentOffset = App.Placement(V(0, 0, -0.8), App.Rotation())
sketch19.addGeometry(Part.LineSegment(V(28, 16, 0), V(25.5, 16, 0)), False)
sketch19.addGeometry(Part.ArcOfCircle(Part.Circle(V(25.5, 12.5, 0), V(0, 0, 1), 3.5), math.radians(90), math.radians(270)), False)
sketch19.addGeometry(Part.LineSegment(V(25.5, 9, 0), V(28, 9, 0)), False)
sketch19.addGeometry(Part.LineSegment(V(28, 9, 0), V(28, 16, 0)), False)
sketch19.addGeometry(Part.Circle(V(25.5, 12.5, 0), V(0, 0, 1), 1.6), False)
sketch19.addConstraint(Sketcher.Constraint("Tangent", 0, 2, 1, 1))
sketch19.addConstraint(Sketcher.Constraint("Tangent", 1, 2, 2, 1))
sketch19.addConstraint(Sketcher.Constraint("Coincident", 2, 2, 3, 1))
sketch19.addConstraint(Sketcher.Constraint("Coincident", 3, 2, 0, 1))
sketch19.addConstraint(Sketcher.Constraint("Horizontal", 0))
sketch19.addConstraint(Sketcher.Constraint("Horizontal", 2))
sketch19.addConstraint(Sketcher.Constraint("Vertical", 3))
sketch19.addConstraint(Sketcher.Constraint("Coincident", 4, 3, 1, 3))
sketch19.addConstraint(Sketcher.Constraint("Diameter", 4, 3.3))
sketch19.addConstraint(Sketcher.Constraint("Radius", 1, 3.5))
sketch19.addConstraint(Sketcher.Constraint("DistanceX", 0, 2, 0, 1, 2.5))
sketch19.addConstraint(Sketcher.Constraint("DistanceY", -1, 1, 0, 2, 16.0))
sketch19.addConstraint(Sketcher.Constraint("DistanceX", -1, 1, 2, 2, 28.0))
sketch19.setExpression("Constraints[8]", "Params.sketch19_diameter")
sketch19.setExpression("Constraints[9]", "Params.sketch19_radius")
sketch19.setExpression("Constraints[10]", "Params.sketch19_width")
pad17 = body17.newObject("PartDesign::Pad", "Pad016")
pad17.Profile = sketch19
pad17.setExpression("Length", "Params.pad17_length")
body18 = doc.addObject("PartDesign::Body", "Body017")

# Sketch on XZ plane
sketch20 = body18.newObject("Sketcher::SketchObject", "Sketch019")
sketch20.AttachmentSupport = (doc.getObject("XZ_Plane017"), [""])
sketch20.MapMode = "FlatFace"
sketch20.AttachmentOffset = App.Placement(V(0, 0, -0.8), App.Rotation())
add_polygon(sketch20, [(29, 2), (29, 23), (28, 23), (28, 2)])  # lines 0-3
sketch20.addConstraint(Sketcher.Constraint("Vertical", 0))
sketch20.addConstraint(Sketcher.Constraint("Horizontal", 1))
sketch20.addConstraint(Sketcher.Constraint("Vertical", 2))
sketch20.addConstraint(Sketcher.Constraint("Horizontal", 3))
sketch20.addConstraint(Sketcher.Constraint("DistanceX", 1, 2, 1, 1, 1.0))
sketch20.addConstraint(Sketcher.Constraint("DistanceY", 0, 1, 0, 2, 21.0))
sketch20.addConstraint(Sketcher.Constraint("DistanceX", -1, 1, 0, 2, 29.0))
sketch20.addConstraint(Sketcher.Constraint("DistanceY", -1, 1, 0, 2, 23.0))
sketch20.setExpression("Constraints[8]", "Params.sketch20_width")
sketch20.setExpression("Constraints[9]", "Params.sketch20_height")
pad18 = body18.newObject("PartDesign::Pad", "Pad017")
pad18.Profile = sketch20
pad18.setExpression("Length", "Params.pad18_length")

doc.recompute()
